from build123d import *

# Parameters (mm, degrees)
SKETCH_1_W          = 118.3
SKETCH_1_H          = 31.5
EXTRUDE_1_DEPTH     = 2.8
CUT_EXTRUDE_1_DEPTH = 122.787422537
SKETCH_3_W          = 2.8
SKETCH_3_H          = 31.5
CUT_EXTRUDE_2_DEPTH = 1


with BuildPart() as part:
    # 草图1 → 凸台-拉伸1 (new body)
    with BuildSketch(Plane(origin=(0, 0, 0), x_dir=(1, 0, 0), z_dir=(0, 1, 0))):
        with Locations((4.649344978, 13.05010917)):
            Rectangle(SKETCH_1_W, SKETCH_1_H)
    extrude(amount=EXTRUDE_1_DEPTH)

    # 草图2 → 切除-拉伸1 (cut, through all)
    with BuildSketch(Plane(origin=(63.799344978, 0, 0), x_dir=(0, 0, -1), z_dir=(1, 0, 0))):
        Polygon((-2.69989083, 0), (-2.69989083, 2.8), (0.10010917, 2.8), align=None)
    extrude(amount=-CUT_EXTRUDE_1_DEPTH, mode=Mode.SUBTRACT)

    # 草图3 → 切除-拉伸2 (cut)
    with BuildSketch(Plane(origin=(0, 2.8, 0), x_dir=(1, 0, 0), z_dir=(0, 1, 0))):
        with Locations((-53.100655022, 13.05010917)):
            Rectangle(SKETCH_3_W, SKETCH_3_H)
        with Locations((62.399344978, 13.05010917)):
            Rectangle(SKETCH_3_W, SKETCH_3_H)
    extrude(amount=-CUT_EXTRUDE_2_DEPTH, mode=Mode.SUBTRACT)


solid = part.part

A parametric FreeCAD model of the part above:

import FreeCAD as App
import Part
import Sketcher

doc = App.newDocument("Part")
body = doc.addObject("PartDesign::Body", "Body")

sketch1 = body.newObject("Sketcher::SketchObject", "Sketch")
sketch1.AttachmentSupport = (doc.getObject("XZ_Plane"), [""])
sketch1.MapMode = "FlatFace"
sketch1.addGeometry([
    Part.LineSegment(App.Vector(-55, -29, 0), App.Vector(-55, 3, 0)),
    Part.LineSegment(App.Vector(-55, 3, 0), App.Vector(64, 3, 0)),
    Part.LineSegment(App.Vector(64, 3, 0), App.Vector(64, -29, 0)),
    Part.LineSegment(App.Vector(64, -29, 0), App.Vector(-55, -29, 0)),
], False)
sketch1.addConstraint([
    Sketcher.Constraint("Coincident", 0, 2, 1, 1),
    Sketcher.Constraint("Coincident", 1, 2, 2, 1),
    Sketcher.Constraint("Coincident", 2, 2, 3, 1),
    Sketcher.Constraint("Coincident", 3, 2, 0, 1),
    Sketcher.Constraint("Vertical", 0),
    Sketcher.Constraint("Horizontal", 1),
    Sketcher.Constraint("Vertical", 2),
    Sketcher.Constraint("Horizontal", 3),
    Sketcher.Constraint("DistanceX", 1, 1, 1, 2, 118.3),
    Sketcher.Constraint("DistanceY", 0, 1, 0, 2, 31.5),
    Sketcher.Constraint("DistanceY", -1, 1, 0, 2, 2.699891),
    Sketcher.Constraint("DistanceX", 0, 2, -1, 1, 54.500655),
])
pad1 = body.newObject("PartDesign::Pad", "Pad")
pad1.Profile = sketch1
pad1.Length = 2.8
pad1.Reversed = True

sketch2 = body.newObject("Sketcher::SketchObject", "Sketch001")
sketch2.AttachmentSupport = (doc.getObject("YZ_Plane"), [""])
sketch2.MapMode = "FlatFace"
sketch2.AttachmentOffset = App.Placement(App.Vector(0, 0, 63.799345), App.Rotation())
sketch2.addGeometry([
    Part.LineSegment(App.Vector(2.8, 2.7, 0), App.Vector(0, 2.7, 0)),
    Part.LineSegment(App.Vector(0, 2.7, 0), App.Vector(2.8, -0.1, 0)),
    Part.LineSegment(App.Vector(2.8, -0.1, 0), App.Vector(2.8, 2.7, 0)),
], False)
sketch2.addConstraint([
    Sketcher.Constraint("Coincident", 0, 2, 1, 1),
    Sketcher.Constraint("Coincident", 1, 2, 2, 1),
    Sketcher.Constraint("Coincident", 2, 2, 0, 1),
    Sketcher.Constraint("Horizontal", 0),
    Sketcher.Constraint("Vertical", 2),
    Sketcher.Constraint("PointOnObject", 0, 2, -2),
    Sketcher.Constraint("Equal", 0, 2),
    Sketcher.Constraint("DistanceX", 0, 2, 0, 1, 2.8),
    Sketcher.Constraint("DistanceY", -1, 1, 0, 2, 2.699891),
])
pocket1 = body.newObject("PartDesign::Pocket", "Pocket")
pocket1.Profile = sketch2
pocket1.Type = "ThroughAll"

sketch3 = body.newObject("Sketcher::SketchObject", "Sketch002")
sketch3.AttachmentSupport = (doc.getObject("XZ_Plane"), [""])
sketch3.MapMode = "FlatFace"
sketch3.AttachmentOffset = App.Placement(App.Vector(0, 0, -2.8), App.Rotation())
sketch3.addGeometry([
    Part.LineSegment(App.Vector(-54.5, -28.8, 0), App.Vector(-54.5, 2.7, 0)),
    Part.LineSegment(App.Vector(-54.5, 2.7, 0), App.Vector(-51.7, 2.7, 0)),
    Part.LineSegment(App.Vector(-51.7, 2.7, 0), App.Vector(-51.7, -28.8, 0)),
    Part.LineSegment(App.Vector(-51.7, -28.8, 0), App.Vector(-54.5, -28.8, 0)),
    Part.LineSegment(App.Vector(61, -28.8, 0), App.Vector(61, 2.7, 0)),
    Part.LineSegment(App.Vector(61, 2.7, 0), App.Vector(63.8, 2.7, 0)),
    Part.LineSegment(App.Vector(63.8, 2.7, 0), App.Vector(63.8, -28.8, 0)),
    Part.LineSegment(App.Vector(63.8, -28.8, 0), App.Vector(61, -28.8, 0)),
], False)
sketch3.addConstraint([
    Sketcher.Constraint("Coincident", 0, 2, 1, 1),
    Sketcher.Constraint("Coincident", 1, 2, 2, 1),
    Sketcher.Constraint("Coincident", 2, 2, 3, 1),
    Sketcher.Constraint("Coincident", 3, 2, 0, 1),
    Sketcher.Constraint("Coincident", 4, 2, 5, 1),
    Sketcher.Constraint("Coincident", 5, 2, 6, 1),
    Sketcher.Constraint("Coincident", 6, 2, 7, 1),
    Sketcher.Constraint("Coincident", 7, 2, 4, 1),
    Sketcher.Constraint("Vertical", 0),
    Sketcher.Constraint("Horizontal", 1),
    Sketcher.Constraint("Vertical", 2),
    Sketcher.Constraint("Horizontal", 3),
    Sketcher.Constraint("Vertical", 4),
    Sketcher.Constraint("Horizontal", 5),
    Sketcher.Constraint("Vertical", 6),
    Sketcher.Constraint("Horizontal", 7),
    Sketcher.Constraint("Horizontal", 1, 2, 4, 2),
    Sketcher.Constraint("Horizontal", 3, 2, 6, 2),
    Sketcher.Constraint("Equal", 3, 5),
    Sketcher.Constraint("DistanceX", 1, 1, 1, 2, 2.8),
    Sketcher.Constraint("DistanceY", 0, 1, 0, 2, 31.5),
    Sketcher.Constraint("DistanceX", 1, 2, 4, 2, 112.7),
    Sketcher.Constraint("DistanceY", -1, 1, 0, 2, 2.699891),
    Sketcher.Constraint("DistanceX", 0, 2, -1, 1, 54.500655),
])
pocket2 = body.newObject("PartDesign::Pocket", "Pocket001")
pocket2.Profile = sketch3
pocket2.Length = 1
pocket2.Reversed = True

doc.recompute()
